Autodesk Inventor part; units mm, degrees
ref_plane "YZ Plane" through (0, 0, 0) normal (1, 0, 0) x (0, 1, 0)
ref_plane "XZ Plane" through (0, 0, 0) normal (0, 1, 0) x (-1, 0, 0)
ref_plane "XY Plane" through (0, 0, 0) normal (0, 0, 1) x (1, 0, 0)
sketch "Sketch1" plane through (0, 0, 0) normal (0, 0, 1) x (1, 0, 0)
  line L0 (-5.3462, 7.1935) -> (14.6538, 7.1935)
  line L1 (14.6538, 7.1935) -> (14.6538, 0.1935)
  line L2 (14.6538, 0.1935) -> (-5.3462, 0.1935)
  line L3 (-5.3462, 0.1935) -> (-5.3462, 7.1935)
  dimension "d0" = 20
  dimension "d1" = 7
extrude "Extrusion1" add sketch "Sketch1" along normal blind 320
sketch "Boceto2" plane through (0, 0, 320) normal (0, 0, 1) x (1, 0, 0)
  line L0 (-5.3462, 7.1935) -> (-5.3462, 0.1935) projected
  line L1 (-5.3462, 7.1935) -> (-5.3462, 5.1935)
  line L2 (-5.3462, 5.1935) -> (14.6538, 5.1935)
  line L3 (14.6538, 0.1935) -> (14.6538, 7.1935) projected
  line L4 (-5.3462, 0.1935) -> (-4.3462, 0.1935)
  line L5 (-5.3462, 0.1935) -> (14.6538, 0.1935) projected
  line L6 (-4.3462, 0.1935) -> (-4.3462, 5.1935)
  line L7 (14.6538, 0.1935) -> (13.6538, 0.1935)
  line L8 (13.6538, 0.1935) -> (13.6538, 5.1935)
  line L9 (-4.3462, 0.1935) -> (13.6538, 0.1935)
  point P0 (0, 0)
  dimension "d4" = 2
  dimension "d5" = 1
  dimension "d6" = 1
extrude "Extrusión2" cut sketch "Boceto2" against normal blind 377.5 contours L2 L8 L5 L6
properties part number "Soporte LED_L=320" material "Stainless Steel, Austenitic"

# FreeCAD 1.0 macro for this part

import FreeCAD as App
import Part
import Sketcher

V = App.Vector
Q = App.Units.Quantity

doc = App.newDocument("Part")
body = doc.addObject("PartDesign::Body", "Body")

sketch1 = doc.addObject("Sketcher::SketchObject", "Sketch")
body.addObject(sketch1)
sketch1.AttachmentSupport = (doc.XY_Plane, [""])
sketch1.MapMode = "FlatFace"
sketch1.addGeometry([
    Part.LineSegment(V(15, 7, 0), V(-5, 7, 0)),
    Part.LineSegment(V(-5, 7, 0), V(-5, 0, 0)),
    Part.LineSegment(V(-5, 0, 0), V(15, 0, 0)),
    Part.LineSegment(V(15, 0, 0), V(15, 7, 0)),
], False)
sketch1.addConstraint([
    Sketcher.Constraint("Coincident", 0, 2, 1, 1),
    Sketcher.Constraint("Coincident", 1, 2, 2, 1),
    Sketcher.Constraint("Coincident", 2, 2, 3, 1),
    Sketcher.Constraint("Coincident", 3, 2, 0, 1),
    Sketcher.Constraint("Horizontal", 0),
    Sketcher.Constraint("Vertical", 1),
    Sketcher.Constraint("Horizontal", 2),
    Sketcher.Constraint("Vertical", 3),
    Sketcher.Constraint("DistanceX", 0, 2, 0, 1, Q("20 mm")),
    Sketcher.Constraint("DistanceY", 1, 2, 1, 1, Q("7 mm")),
    Sketcher.Constraint("DistanceX", 0, 2, -1, 1, Q("5.3462 mm")),
    Sketcher.Constraint("DistanceY", -1, 1, 0, 2, Q("7.1935 mm")),
])
pad1 = doc.addObject("PartDesign::Pad", "Pad")
body.addObject(pad1)
pad1.Profile = sketch1
pad1.Length = 320

sketch2 = doc.addObject("Sketcher::SketchObject", "Sketch001")
body.addObject(sketch2)
sketch2.AttachmentSupport = (doc.XY_Plane, [""])
sketch2.MapMode = "FlatFace"
sketch2.AttachmentOffset = App.Placement(V(0, 0, 320), App.Rotation())
sketch2.addGeometry([
    Part.LineSegment(V(14, 5, 0), V(-4, 5, 0)),
    Part.LineSegment(V(-4, 5, 0), V(-4, 0, 0)),
    Part.LineSegment(V(-4, 0, 0), V(14, 0, 0)),
    Part.LineSegment(V(14, 0, 0), V(14, 5, 0)),
], False)
sketch2.addConstraint([
    Sketcher.Constraint("Coincident", 0, 2, 1, 1),
    Sketcher.Constraint("Coincident", 1, 2, 2, 1),
    Sketcher.Constraint("Coincident", 2, 2, 3, 1),
    Sketcher.Constraint("Coincident", 3, 2, 0, 1),
    Sketcher.Constraint("Horizontal", 0),
    Sketcher.Constraint("Vertical", 1),
    Sketcher.Constraint("Horizontal", 2),
    Sketcher.Constraint("Vertical", 3),
    Sketcher.Constraint("DistanceX", 0, 2, 0, 1, Q("18 mm")),
    Sketcher.Constraint("DistanceY", 1, 2, 1, 1, Q("5 mm")),
    Sketcher.Constraint("DistanceX", 0, 2, -1, 1, Q("4.3462 mm")),
    Sketcher.Constraint("DistanceY", -1, 1, 0, 2, Q("5.1935 mm")),
])
pocket1 = doc.addObject("PartDesign::Pocket", "Pocket")
body.addObject(pocket1)
pocket1.Profile = sketch2
pocket1.Length = 377.5

doc.recompute()
